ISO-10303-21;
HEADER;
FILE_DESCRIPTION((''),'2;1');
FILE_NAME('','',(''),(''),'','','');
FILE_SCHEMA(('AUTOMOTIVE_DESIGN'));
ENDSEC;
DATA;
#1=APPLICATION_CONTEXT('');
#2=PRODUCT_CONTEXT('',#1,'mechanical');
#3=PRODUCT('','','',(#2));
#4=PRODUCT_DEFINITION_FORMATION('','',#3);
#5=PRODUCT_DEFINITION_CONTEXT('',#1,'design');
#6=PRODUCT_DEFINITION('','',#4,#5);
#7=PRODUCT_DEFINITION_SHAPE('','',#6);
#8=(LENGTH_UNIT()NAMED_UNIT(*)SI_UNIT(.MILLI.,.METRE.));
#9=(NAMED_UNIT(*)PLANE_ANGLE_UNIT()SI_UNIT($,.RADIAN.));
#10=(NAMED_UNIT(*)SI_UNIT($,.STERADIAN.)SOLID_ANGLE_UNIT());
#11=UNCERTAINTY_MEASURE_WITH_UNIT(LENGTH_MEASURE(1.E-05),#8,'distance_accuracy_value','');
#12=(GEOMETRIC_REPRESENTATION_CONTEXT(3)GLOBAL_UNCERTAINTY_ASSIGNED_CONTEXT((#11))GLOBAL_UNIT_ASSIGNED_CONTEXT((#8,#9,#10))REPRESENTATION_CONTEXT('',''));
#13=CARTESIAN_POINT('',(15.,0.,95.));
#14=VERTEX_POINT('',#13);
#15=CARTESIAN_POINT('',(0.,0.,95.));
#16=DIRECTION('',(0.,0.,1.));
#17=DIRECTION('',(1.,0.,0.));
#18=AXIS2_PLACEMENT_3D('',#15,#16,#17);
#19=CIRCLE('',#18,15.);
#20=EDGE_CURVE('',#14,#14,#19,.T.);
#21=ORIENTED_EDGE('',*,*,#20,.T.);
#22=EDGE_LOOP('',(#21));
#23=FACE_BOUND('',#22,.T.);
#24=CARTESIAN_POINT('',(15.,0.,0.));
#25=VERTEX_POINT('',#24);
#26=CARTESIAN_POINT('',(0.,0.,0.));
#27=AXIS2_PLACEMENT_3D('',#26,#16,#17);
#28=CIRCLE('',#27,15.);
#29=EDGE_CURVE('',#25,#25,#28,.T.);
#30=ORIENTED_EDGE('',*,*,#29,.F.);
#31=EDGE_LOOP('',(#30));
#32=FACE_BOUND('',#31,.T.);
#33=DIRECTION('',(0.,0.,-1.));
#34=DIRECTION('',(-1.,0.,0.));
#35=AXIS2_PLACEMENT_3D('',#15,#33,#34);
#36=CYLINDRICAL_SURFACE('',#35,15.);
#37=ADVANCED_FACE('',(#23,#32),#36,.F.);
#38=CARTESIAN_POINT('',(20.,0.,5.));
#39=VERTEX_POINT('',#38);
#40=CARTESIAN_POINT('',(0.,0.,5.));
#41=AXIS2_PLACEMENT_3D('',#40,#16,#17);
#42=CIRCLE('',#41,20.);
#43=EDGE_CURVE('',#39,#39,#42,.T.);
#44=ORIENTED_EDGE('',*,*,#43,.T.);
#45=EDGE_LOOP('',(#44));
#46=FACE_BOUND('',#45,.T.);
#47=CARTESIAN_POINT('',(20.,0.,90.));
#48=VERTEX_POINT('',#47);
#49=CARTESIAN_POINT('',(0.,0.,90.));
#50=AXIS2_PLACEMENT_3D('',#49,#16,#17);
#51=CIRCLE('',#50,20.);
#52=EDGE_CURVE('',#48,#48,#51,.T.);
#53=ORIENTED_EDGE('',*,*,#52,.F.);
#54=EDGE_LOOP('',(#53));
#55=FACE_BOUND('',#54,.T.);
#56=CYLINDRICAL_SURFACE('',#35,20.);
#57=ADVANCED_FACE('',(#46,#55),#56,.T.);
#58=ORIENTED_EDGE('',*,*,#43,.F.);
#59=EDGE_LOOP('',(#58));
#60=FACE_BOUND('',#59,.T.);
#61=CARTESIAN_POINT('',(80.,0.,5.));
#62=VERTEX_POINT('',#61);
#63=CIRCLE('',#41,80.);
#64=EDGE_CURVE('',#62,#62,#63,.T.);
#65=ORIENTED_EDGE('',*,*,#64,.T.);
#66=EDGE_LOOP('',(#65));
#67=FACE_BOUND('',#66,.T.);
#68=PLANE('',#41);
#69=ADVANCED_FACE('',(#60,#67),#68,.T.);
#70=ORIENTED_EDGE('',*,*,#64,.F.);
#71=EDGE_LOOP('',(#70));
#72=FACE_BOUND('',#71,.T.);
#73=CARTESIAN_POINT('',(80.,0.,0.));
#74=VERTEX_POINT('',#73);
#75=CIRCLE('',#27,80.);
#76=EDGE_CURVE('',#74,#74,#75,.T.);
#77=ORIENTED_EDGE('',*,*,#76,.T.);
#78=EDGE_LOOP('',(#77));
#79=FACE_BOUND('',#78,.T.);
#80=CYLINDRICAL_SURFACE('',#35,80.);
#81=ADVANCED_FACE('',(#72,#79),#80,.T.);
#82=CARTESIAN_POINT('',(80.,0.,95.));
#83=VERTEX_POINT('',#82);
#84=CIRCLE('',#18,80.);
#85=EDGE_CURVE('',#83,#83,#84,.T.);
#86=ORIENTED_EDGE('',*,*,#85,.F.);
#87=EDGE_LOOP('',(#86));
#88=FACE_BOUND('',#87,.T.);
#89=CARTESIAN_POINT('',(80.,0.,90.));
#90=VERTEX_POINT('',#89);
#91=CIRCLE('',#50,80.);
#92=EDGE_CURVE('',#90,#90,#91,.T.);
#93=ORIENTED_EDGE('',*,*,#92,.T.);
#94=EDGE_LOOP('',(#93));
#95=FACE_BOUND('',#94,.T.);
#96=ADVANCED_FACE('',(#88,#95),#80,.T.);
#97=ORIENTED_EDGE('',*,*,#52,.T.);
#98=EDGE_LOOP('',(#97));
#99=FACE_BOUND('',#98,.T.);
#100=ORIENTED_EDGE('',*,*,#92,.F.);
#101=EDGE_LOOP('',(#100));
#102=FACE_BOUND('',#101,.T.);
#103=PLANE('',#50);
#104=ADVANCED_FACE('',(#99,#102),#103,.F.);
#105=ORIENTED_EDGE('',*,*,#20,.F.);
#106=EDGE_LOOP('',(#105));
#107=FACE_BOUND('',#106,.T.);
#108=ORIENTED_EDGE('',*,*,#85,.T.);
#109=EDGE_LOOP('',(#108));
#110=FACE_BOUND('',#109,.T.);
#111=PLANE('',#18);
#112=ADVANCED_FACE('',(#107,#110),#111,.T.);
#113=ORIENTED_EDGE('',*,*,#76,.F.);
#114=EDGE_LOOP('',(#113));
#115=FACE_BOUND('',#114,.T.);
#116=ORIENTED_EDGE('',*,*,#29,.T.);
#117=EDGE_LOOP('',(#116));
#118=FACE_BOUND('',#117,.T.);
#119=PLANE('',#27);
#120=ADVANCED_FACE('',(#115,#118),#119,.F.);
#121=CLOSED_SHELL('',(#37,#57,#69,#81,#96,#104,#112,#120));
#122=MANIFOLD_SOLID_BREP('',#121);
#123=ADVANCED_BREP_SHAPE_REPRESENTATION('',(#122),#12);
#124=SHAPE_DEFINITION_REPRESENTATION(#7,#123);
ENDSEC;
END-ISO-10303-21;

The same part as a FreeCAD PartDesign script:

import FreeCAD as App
import Part
import Sketcher
from FreeCAD import Vector


def faces_at(feature, points):
    """Names of the faces that lie closest to the given points."""
    faces = feature.Shape.Faces
    near = lambda p: min(range(len(faces)), key=lambda i: faces[i].distToShape(Part.Vertex(*p))[0])
    return sorted({f"Face{near(p) + 1}" for p in points})

doc = App.newDocument("Part")
body = doc.addObject("PartDesign::Body", "Body")

sketch1 = body.newObject("Sketcher::SketchObject", "Sketch")
sketch1.AttachmentSupport = (doc.getObject("XY_Plane"), [""])
sketch1.MapMode = "FlatFace"
sketch1.addGeometry(Part.Circle(Vector(0, 0, 0), Vector(0, 0, 1), 80), False)
sketch1.addGeometry(Part.Circle(Vector(0, 0, 0), Vector(0, 0, 1), 15), False)
sketch1.addConstraint(Sketcher.Constraint("Coincident", 0, 3, -1, 1))
sketch1.addConstraint(Sketcher.Constraint("Coincident", 1, 3, -1, 1))
sketch1.addConstraint(Sketcher.Constraint("Diameter", 0, 160.0))
sketch1.addConstraint(Sketcher.Constraint("Diameter", 1, 30.0))
pad1 = body.newObject("PartDesign::Pad", "Pad")
pad1.Profile = sketch1
pad1.Length = 95
doc.recompute()

thickness = body.newObject("PartDesign::Thickness", "Thickness")
thickness.Base = (pad1, faces_at(pad1, [(-80, 0, 47.5)]))
thickness.Value = 5
thickness.Reversed = True
thickness.Join = "Intersection"

doc.recompute()
